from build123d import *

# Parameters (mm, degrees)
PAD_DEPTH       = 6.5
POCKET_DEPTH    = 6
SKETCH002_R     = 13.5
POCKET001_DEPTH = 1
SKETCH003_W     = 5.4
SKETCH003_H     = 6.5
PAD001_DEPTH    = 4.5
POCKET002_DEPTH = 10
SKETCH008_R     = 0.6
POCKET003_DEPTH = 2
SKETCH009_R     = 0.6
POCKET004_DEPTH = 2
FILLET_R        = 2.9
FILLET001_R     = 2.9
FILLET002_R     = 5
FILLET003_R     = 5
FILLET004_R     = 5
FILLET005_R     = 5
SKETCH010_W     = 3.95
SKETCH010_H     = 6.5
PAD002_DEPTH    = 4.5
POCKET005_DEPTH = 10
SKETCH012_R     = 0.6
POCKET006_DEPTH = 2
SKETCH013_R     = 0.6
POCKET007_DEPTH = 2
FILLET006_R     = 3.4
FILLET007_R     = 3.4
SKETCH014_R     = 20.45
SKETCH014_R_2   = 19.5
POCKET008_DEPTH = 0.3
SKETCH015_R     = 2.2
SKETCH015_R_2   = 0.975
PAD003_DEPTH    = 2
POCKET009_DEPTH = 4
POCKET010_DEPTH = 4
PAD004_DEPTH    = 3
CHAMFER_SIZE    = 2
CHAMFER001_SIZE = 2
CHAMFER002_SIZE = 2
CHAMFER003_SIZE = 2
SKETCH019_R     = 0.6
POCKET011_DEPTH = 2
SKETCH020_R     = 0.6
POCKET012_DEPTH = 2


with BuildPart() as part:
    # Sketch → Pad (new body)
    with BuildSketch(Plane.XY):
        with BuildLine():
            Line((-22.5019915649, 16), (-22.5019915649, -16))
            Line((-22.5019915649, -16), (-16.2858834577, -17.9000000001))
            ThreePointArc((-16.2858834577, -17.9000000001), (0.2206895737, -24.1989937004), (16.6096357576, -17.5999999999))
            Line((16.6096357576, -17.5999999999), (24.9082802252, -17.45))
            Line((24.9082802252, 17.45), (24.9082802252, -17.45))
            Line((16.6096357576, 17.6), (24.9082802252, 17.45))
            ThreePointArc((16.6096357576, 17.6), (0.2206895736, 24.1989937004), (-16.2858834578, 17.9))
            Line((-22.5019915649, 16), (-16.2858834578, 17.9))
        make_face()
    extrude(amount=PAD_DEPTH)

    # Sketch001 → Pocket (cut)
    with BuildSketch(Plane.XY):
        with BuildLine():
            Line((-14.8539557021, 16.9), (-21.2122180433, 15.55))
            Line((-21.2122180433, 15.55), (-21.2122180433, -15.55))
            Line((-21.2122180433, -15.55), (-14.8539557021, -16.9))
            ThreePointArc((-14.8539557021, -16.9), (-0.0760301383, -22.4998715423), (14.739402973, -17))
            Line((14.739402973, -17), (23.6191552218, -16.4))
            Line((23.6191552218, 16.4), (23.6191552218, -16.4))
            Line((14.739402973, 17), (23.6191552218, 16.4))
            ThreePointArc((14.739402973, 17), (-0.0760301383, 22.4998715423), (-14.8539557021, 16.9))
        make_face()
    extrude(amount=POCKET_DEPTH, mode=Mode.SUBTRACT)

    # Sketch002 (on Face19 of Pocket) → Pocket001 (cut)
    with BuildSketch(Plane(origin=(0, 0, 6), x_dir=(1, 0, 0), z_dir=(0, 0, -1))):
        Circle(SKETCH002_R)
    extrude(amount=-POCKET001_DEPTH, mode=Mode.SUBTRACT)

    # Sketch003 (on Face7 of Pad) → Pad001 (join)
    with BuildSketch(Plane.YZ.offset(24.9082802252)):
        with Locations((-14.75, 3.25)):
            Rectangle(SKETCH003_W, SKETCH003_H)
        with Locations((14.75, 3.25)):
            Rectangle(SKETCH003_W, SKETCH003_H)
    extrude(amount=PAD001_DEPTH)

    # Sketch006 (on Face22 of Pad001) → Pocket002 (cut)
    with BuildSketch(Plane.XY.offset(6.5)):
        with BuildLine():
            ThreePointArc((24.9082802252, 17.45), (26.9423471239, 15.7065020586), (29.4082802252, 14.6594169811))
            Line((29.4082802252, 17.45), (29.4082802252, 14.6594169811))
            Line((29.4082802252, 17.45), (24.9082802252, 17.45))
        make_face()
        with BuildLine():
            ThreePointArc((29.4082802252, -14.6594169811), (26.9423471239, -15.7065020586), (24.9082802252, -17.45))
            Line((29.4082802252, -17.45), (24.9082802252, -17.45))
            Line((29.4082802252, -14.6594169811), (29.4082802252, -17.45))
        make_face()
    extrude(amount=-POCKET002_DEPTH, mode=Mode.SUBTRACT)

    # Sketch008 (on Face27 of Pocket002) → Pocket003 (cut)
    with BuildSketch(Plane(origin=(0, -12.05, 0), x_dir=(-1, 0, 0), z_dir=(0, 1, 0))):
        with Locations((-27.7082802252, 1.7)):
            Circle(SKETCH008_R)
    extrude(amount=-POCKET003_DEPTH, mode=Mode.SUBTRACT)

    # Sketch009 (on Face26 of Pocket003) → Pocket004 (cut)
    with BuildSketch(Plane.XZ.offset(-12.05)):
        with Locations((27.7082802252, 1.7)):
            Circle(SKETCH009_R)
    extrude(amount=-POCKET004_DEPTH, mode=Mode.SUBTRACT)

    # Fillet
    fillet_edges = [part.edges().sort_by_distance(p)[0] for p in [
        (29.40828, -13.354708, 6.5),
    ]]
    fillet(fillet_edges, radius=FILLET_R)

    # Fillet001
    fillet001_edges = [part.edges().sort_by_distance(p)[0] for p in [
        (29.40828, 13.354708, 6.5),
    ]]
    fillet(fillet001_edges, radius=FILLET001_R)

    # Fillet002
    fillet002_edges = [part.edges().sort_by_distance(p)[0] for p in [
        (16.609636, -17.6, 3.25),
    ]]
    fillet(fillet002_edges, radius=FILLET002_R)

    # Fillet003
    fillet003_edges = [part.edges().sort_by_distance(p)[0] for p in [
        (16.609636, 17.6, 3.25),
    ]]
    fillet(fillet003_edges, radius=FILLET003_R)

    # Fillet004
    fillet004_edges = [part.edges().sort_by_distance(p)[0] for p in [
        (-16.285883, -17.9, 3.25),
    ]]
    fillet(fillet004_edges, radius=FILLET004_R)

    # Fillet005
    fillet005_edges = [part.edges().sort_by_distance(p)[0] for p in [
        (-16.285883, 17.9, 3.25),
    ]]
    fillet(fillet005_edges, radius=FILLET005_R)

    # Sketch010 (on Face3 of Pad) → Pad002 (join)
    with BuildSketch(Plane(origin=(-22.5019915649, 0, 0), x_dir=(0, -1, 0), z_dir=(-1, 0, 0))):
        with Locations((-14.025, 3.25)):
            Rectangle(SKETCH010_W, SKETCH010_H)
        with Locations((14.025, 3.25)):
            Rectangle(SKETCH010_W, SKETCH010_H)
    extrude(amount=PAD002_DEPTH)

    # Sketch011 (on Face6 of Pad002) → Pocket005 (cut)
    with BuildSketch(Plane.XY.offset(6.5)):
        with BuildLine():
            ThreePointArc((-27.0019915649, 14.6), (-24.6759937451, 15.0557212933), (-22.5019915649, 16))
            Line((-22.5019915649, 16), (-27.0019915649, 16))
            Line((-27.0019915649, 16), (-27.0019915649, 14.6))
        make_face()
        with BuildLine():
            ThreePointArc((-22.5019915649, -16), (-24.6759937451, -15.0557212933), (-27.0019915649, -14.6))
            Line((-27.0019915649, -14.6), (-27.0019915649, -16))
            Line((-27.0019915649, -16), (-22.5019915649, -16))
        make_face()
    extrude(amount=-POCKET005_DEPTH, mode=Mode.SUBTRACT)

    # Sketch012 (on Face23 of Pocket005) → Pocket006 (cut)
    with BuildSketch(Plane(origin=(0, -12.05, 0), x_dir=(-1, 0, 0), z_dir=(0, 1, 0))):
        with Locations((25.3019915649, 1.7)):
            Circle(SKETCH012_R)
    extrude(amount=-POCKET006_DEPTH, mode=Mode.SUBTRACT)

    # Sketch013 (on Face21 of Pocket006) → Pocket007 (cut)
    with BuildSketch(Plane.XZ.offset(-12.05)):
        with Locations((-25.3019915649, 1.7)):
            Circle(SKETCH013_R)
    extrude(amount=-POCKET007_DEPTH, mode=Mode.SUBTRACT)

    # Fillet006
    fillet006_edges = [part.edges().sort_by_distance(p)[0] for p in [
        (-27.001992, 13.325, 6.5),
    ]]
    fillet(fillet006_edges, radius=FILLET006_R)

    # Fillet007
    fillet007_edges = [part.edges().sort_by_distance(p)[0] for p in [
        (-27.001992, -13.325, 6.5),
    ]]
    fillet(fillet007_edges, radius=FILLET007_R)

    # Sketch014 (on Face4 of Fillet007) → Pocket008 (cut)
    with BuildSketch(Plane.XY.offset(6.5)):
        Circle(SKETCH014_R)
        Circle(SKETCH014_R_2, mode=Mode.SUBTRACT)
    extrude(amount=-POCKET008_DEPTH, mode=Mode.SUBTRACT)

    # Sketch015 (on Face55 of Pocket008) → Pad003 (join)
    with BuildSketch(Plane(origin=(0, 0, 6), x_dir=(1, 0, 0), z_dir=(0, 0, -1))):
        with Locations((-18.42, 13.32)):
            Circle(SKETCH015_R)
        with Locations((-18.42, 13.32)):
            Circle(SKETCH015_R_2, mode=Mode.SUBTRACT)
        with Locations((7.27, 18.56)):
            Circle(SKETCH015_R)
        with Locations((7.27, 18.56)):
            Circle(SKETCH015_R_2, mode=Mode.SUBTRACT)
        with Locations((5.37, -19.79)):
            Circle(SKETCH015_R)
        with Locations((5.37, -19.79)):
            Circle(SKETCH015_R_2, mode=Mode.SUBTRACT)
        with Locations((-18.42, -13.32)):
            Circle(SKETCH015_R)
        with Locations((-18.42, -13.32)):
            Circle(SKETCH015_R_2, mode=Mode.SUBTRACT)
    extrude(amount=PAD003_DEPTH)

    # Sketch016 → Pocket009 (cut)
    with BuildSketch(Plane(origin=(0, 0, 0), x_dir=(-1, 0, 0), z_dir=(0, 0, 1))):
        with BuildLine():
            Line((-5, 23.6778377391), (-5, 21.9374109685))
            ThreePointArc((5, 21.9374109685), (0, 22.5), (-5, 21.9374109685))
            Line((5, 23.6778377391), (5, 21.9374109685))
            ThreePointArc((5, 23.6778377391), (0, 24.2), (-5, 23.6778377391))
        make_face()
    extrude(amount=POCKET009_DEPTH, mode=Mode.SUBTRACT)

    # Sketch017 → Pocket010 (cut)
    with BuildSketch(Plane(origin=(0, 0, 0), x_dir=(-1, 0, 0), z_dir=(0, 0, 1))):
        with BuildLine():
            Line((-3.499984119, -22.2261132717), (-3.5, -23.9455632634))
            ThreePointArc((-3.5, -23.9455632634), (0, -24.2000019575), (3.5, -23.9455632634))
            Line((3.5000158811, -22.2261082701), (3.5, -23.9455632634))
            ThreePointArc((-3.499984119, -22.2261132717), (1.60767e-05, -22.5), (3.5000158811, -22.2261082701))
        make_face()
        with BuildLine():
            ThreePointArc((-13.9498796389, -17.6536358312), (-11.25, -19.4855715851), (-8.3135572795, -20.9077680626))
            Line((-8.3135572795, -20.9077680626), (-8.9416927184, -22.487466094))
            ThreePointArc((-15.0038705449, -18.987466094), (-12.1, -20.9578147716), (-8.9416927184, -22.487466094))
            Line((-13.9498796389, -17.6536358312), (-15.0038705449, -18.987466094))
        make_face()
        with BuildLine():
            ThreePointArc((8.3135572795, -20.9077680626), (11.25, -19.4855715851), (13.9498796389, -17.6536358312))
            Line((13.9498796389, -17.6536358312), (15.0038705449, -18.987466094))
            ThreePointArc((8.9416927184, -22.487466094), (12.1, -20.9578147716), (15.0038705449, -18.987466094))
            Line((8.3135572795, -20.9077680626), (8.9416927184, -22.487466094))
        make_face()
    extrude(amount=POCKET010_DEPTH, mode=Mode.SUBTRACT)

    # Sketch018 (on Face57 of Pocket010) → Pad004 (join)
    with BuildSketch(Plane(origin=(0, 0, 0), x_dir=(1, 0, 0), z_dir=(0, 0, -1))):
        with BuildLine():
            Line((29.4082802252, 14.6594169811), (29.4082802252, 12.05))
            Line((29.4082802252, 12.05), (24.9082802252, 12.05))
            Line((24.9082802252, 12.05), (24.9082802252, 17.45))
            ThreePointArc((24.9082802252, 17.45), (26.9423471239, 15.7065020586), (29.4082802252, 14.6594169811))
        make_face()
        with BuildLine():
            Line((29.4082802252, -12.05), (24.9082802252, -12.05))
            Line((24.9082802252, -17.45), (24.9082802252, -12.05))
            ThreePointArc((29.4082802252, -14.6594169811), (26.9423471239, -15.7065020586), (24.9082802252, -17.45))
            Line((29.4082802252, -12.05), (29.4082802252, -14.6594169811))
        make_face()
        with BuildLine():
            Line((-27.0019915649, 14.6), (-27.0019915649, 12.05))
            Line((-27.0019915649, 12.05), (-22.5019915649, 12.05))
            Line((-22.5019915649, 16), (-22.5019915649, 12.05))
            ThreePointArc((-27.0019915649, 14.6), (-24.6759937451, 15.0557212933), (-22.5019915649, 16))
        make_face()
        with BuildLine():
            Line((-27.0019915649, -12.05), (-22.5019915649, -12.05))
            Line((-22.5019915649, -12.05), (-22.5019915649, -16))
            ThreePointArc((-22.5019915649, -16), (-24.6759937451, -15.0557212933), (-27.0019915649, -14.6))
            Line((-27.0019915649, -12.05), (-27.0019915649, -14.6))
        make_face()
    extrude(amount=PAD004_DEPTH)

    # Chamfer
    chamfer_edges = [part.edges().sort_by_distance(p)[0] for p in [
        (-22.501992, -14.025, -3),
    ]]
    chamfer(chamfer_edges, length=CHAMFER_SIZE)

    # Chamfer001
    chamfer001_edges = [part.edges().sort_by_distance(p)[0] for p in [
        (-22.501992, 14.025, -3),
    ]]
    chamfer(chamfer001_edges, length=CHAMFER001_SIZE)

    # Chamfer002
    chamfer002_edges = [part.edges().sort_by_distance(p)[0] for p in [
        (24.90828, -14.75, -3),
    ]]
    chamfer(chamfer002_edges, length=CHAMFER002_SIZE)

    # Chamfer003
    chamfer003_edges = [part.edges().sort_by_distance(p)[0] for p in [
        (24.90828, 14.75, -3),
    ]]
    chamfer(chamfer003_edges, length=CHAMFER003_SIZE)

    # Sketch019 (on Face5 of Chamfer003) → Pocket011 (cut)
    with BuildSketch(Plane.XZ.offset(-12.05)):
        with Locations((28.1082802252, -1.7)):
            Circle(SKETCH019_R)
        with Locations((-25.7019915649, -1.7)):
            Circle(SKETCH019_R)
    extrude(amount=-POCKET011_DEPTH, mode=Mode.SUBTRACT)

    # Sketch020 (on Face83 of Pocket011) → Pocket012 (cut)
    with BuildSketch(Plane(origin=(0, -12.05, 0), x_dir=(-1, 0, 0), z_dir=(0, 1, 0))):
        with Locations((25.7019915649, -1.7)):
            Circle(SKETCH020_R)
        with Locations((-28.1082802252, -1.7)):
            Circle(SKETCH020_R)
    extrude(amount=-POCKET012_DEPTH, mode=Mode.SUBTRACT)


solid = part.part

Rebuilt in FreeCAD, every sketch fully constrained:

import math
import FreeCAD as App
import Part
import Sketcher


def edges_at(feature, points):
    """Names of the edges that pass closest to the given points."""
    edges = feature.Shape.Edges
    near = lambda p: min(range(len(edges)), key=lambda i: edges[i].distToShape(Part.Vertex(*p))[0])
    return sorted({f"Edge{near(p) + 1}" for p in points})


def add_polygon(sketch, points):
    """Adds a closed chain of lines whose ends are joined by coincident constraints."""
    first, n = sketch.GeometryCount, len(points)
    for a, b in zip(points, points[1:] + points[:1]):
        sketch.addGeometry(Part.LineSegment(App.Vector(*a, 0), App.Vector(*b, 0)), False)
    for i in range(n):
        sketch.addConstraint(Sketcher.Constraint("Coincident", first + i, 2, first + (i + 1) % n, 1))

doc = App.newDocument("Part")
body = doc.addObject("PartDesign::Body", "Body")

# Sketch on XY plane
sketch1 = body.newObject("Sketcher::SketchObject", "Sketch")
sketch1.AttachmentSupport = (doc.getObject("XY_Plane"), [""])
sketch1.MapMode = "FlatFace"
sketch1.addGeometry([
    Part.LineSegment(App.Vector(-22.501992, 16, 0), App.Vector(-22.501992, -16, 0)),  # 0
    Part.LineSegment(App.Vector(-22.501992, -16, 0), App.Vector(-16.285883, -17.9, 0)),  # 1
    Part.ArcOfCircle(Part.Circle(App.Vector(0, 0, 0), App.Vector(0, 0, 1), 24.2), math.radians(-132.296737), math.radians(-46.658242)),  # 2
    Part.LineSegment(App.Vector(16.609636, -17.6, 0), App.Vector(24.90828, -17.45, 0)),  # 3
    Part.LineSegment(App.Vector(24.90828, -17.45, 0), App.Vector(24.90828, 17.45, 0)),  # 4
    Part.LineSegment(App.Vector(24.90828, 17.45, 0), App.Vector(16.609636, 17.6, 0)),  # 5
    Part.ArcOfCircle(Part.Circle(App.Vector(0, 0, 0), App.Vector(0, 0, 1), 24.2), math.radians(46.658242), math.radians(132.296737)),  # 6
    Part.LineSegment(App.Vector(-16.285883, 17.9, 0), App.Vector(-22.501992, 16, 0)),  # 7
], False)
sketch1.addConstraint([
    Sketcher.Constraint("Coincident", 0, 2, 1, 1),
    Sketcher.Constraint("Coincident", 1, 2, 2, 1),
    Sketcher.Constraint("Coincident", 2, 2, 3, 1),
    Sketcher.Constraint("Coincident", 3, 2, 4, 1),
    Sketcher.Constraint("Coincident", 4, 2, 5, 1),
    Sketcher.Constraint("Coincident", 5, 2, 6, 1),
    Sketcher.Constraint("Coincident", 6, 2, 7, 1),
    Sketcher.Constraint("Coincident", 7, 2, 0, 1),
    Sketcher.Constraint("Vertical", 0),
    Sketcher.Constraint("Vertical", 4),
    Sketcher.Constraint("Coincident", 2, 3, -1, 1),
    Sketcher.Constraint("Coincident", 6, 3, -1, 1),
    Sketcher.Constraint("Equal", 2, 6),
    Sketcher.Constraint("Vertical", 2, 2, 5, 2),
    Sketcher.Constraint("Vertical", 1, 2, 6, 2),
    Sketcher.Constraint("Equal", 3, 5),
    Sketcher.Constraint("Equal", 1, 7),
    Sketcher.Constraint("Radius", 2, 24.2),
    Sketcher.Constraint("DistanceY", 0, 2, 0, 1, 32.0),
    Sketcher.Constraint("DistanceY", 4, 1, 4, 2, 34.9),
    Sketcher.Constraint("Distance", 1, 6.5),
    Sketcher.Constraint("Distance", 3, 8.3),
    Sketcher.Constraint("DistanceY", 1, 2, -1, 1, 17.9),
    Sketcher.Constraint("DistanceY", 2, 2, -1, 1, 17.6),
])
pad1 = body.newObject("PartDesign::Pad", "Pad")
pad1.Profile = sketch1
pad1.Length = 6.5

# Sketch on XY plane
sketch2 = body.newObject("Sketcher::SketchObject", "Sketch001")
sketch2.AttachmentSupport = (doc.getObject("XY_Plane"), [""])
sketch2.MapMode = "FlatFace"
sketch2.addGeometry([
    Part.LineSegment(App.Vector(-14.853956, 16.9, 0), App.Vector(-21.212218, 15.55, 0)),  # 0
    Part.LineSegment(App.Vector(-21.212218, 15.55, 0), App.Vector(-21.212218, -15.55, 0)),  # 1
    Part.LineSegment(App.Vector(-21.212218, -15.55, 0), App.Vector(-14.853956, -16.9, 0)),  # 2
    Part.ArcOfCircle(Part.Circle(App.Vector(0, 0, 0), App.Vector(0, 0, 1), 22.5), math.radians(-131.313282), math.radians(-49.073937)),  # 3
    Part.LineSegment(App.Vector(14.739403, -17, 0), App.Vector(23.619155, -16.4, 0)),  # 4
    Part.LineSegment(App.Vector(23.619155, -16.4, 0), App.Vector(23.619155, 16.4, 0)),  # 5
    Part.LineSegment(App.Vector(23.619155, 16.4, 0), App.Vector(14.739403, 17, 0)),  # 6
    Part.ArcOfCircle(Part.Circle(App.Vector(0, 0, 0), App.Vector(0, 0, 1), 22.5), math.radians(49.073937), math.radians(131.313282)),  # 7
], False)
sketch2.addConstraint([
    Sketcher.Constraint("Coincident", 0, 2, 1, 1),
    Sketcher.Constraint("Coincident", 1, 2, 2, 1),
    Sketcher.Constraint("Coincident", 2, 2, 3, 1),
    Sketcher.Constraint("Coincident", 3, 2, 4, 1),
    Sketcher.Constraint("Coincident", 4, 2, 5, 1),
    Sketcher.Constraint("Coincident", 5, 2, 6, 1),
    Sketcher.Constraint("Coincident", 6, 2, 7, 1),
    Sketcher.Constraint("Coincident", 7, 2, 0, 1),
    Sketcher.Constraint("Vertical", 1),
    Sketcher.Constraint("Vertical", 5),
    Sketcher.Constraint("Coincident", 3, 3, -1, 1),
    Sketcher.Constraint("Coincident", 7, 3, -1, 1),
    Sketcher.Constraint("Equal", 3, 7),
    Sketcher.Constraint("Vertical", 3, 2, 6, 2),
    Sketcher.Constraint("Vertical", 2, 2, 7, 2),
    Sketcher.Constraint("Equal", 0, 2),
    Sketcher.Constraint("Equal", 4, 6),
    Sketcher.Constraint("Radius", 3, 22.5),
    Sketcher.Constraint("DistanceY", 1, 2, 1, 1, 31.1),
    Sketcher.Constraint("DistanceY", 5, 1, 5, 2, 32.8),
    Sketcher.Constraint("DistanceY", 3, 2, -1, 1, 17.0),
    Sketcher.Constraint("Distance", 0, 6.5),
    Sketcher.Constraint("Distance", 4, 8.9),
    Sketcher.Constraint("DistanceY", 2, 2, -1, 1, 16.9),
])
pocket1 = body.newObject("PartDesign::Pocket", "Pocket")
pocket1.Profile = sketch2
pocket1.Length = 6
pocket1.Reversed = True

# Sketch on XY plane
sketch3 = body.newObject("Sketcher::SketchObject", "Sketch002")
sketch3.AttachmentSupport = (doc.getObject("XY_Plane"), [""])
sketch3.MapMode = "FlatFace"
sketch3.AttachmentOffset = App.Placement(App.Vector(0, 0, 6), App.Rotation())
sketch3.addGeometry(Part.Circle(App.Vector(0, 0, 0), App.Vector(0, 0, 1), 13.5), False)
sketch3.addConstraint([
    Sketcher.Constraint("Coincident", 0, 3, -1, 1),
    Sketcher.Constraint("Diameter", 0, 27.0),
])
pocket2 = body.newObject("PartDesign::Pocket", "Pocket001")
pocket2.Profile = sketch3
pocket2.Length = 1
pocket2.Reversed = True

# Sketch on YZ plane
sketch4 = body.newObject("Sketcher::SketchObject", "Sketch003")
sketch4.AttachmentSupport = (doc.getObject("YZ_Plane"), [""])
sketch4.MapMode = "FlatFace"
sketch4.AttachmentOffset = App.Placement(App.Vector(0, 0, 24.90828), App.Rotation())
add_polygon(sketch4, [(-17.45, 6.5), (-17.45, 0), (-12.05, 0), (-12.05, 6.5)])  # lines 0-3
add_polygon(sketch4, [(12.05, 6.5), (12.05, 0), (17.45, 0), (17.45, 6.5)])  # lines 4-7
sketch4.addConstraint([
    Sketcher.Constraint("Vertical", 0),
    Sketcher.Constraint("Horizontal", 1),
    Sketcher.Constraint("Vertical", 2),
    Sketcher.Constraint("Horizontal", 3),
    Sketcher.Constraint("Vertical", 4),
    Sketcher.Constraint("Horizontal", 5),
    Sketcher.Constraint("Vertical", 6),
    Sketcher.Constraint("Horizontal", 7),
    Sketcher.Constraint("Symmetric", 1, 2, 4, 2, -1, 1),
    Sketcher.Constraint("Symmetric", 0, 2, 5, 2, -2),
    Sketcher.Constraint("Horizontal", 3, 2, 6, 2),
    Sketcher.Constraint("DistanceX", 1, 1, 1, 2, 5.4),
    Sketcher.Constraint("DistanceY", 0, 2, 0, 1, 6.5),
    Sketcher.Constraint("DistanceX", 1, 2, 4, 2, 24.1),
])
pad2 = body.newObject("PartDesign::Pad", "Pad001")
pad2.Profile = sketch4
pad2.Length = 4.5

# Sketch on XY plane
sketch5 = body.newObject("Sketcher::SketchObject", "Sketch004")
sketch5.AttachmentSupport = (doc.getObject("XY_Plane"), [""])
sketch5.MapMode = "FlatFace"
sketch5.AttachmentOffset = App.Placement(App.Vector(0, 0, 6.5), App.Rotation())
sketch5.addGeometry([
    Part.ArcOfCircle(Part.Circle(App.Vector(31.55828, 23.15, 0), App.Vector(0, 0, 1), 8.758567), math.radians(-139.398705), math.radians(-104.209844)),  # 0
    Part.LineSegment(App.Vector(29.40828, 14.659417, 0), App.Vector(29.40828, 17.45, 0)),  # 1
    Part.LineSegment(App.Vector(29.40828, 17.45, 0), App.Vector(24.90828, 17.45, 0)),  # 2
    Part.ArcOfCircle(Part.Circle(App.Vector(31.55828, -23.15, 0), App.Vector(0, 0, 1), 8.758567), math.radians(104.209844), math.radians(139.398705)),  # 3
    Part.LineSegment(App.Vector(24.90828, -17.45, 0), App.Vector(29.40828, -17.45, 0)),  # 4
    Part.LineSegment(App.Vector(29.40828, -17.45, 0), App.Vector(29.40828, -14.659417, 0)),  # 5
], False)
sketch5.addConstraint([
    Sketcher.Constraint("Coincident", 0, 2, 1, 1),
    Sketcher.Constraint("Coincident", 1, 2, 2, 1),
    Sketcher.Constraint("Coincident", 2, 2, 0, 1),
    Sketcher.Constraint("Coincident", 3, 2, 4, 1),
    Sketcher.Constraint("Coincident", 4, 2, 5, 1),
    Sketcher.Constraint("Coincident", 5, 2, 3, 1),
    Sketcher.Constraint("Vertical", 1),
    Sketcher.Constraint("Horizontal", 2),
    Sketcher.Constraint("Horizontal", 4),
    Sketcher.Constraint("Vertical", 5),
    Sketcher.Constraint("Equal", 0, 3),
    Sketcher.Constraint("Symmetric", 0, 3, 3, 3, -1),
    Sketcher.Constraint("Symmetric", 1, 2, 4, 2, -1),
    Sketcher.Constraint("DistanceX", 2, 2, 2, 1, 4.5),
    Sketcher.Constraint("DistanceY", 3, 3, 0, 3, 46.3),
    Sketcher.Constraint("DistanceY", 1, 2, 0, 3, 5.7),
    Sketcher.Constraint("DistanceX", 0, 2, 0, 3, 2.15),
    Sketcher.Constraint("DistanceX", -1, 1, 0, 3, 31.55828),
])
pocket3 = body.newObject("PartDesign::Pocket", "Pocket002")
pocket3.Profile = sketch5
pocket3.Length = 10

# Sketch on XZ plane
sketch6 = body.newObject("Sketcher::SketchObject", "Sketch005")
sketch6.AttachmentSupport = (doc.getObject("XZ_Plane"), [""])
sketch6.MapMode = "FlatFace"
sketch6.AttachmentOffset = App.Placement(App.Vector(0, 0, 12.05), App.Rotation())
sketch6.addGeometry(Part.Circle(App.Vector(27.70828, 1.7, 0), App.Vector(0, 0, 1), 0.6), False)
sketch6.addConstraint([
    Sketcher.Constraint("Diameter", 0, 1.2),
    Sketcher.Constraint("DistanceY", -1, 1, 0, 3, 1.7),
    Sketcher.Constraint("DistanceX", -1, 1, 0, 3, 27.70828),
])
pocket4 = body.newObject("PartDesign::Pocket", "Pocket003")
pocket4.Profile = sketch6
pocket4.Length = 2
pocket4.Reversed = True

# Sketch on XZ plane
sketch7 = body.newObject("Sketcher::SketchObject", "Sketch006")
sketch7.AttachmentSupport = (doc.getObject("XZ_Plane"), [""])
sketch7.MapMode = "FlatFace"
sketch7.AttachmentOffset = App.Placement(App.Vector(0, 0, -12.05), App.Rotation())
sketch7.addGeometry(Part.Circle(App.Vector(27.70828, 1.7, 0), App.Vector(0, 0, 1), 0.6), False)
sketch7.addConstraint([
    Sketcher.Constraint("Diameter", 0, 1.2),
    Sketcher.Constraint("DistanceY", -1, 1, 0, 3, 1.7),
    Sketcher.Constraint("DistanceX", -1, 1, 0, 3, 27.70828),
])
pocket5 = body.newObject("PartDesign::Pocket", "Pocket004")
pocket5.Profile = sketch7
pocket5.Length = 2
doc.recompute()

fillet = body.newObject("PartDesign::Fillet", "Fillet")
fillet.Base = (pocket5, edges_at(pocket5, [(29.408, -13.355, 6.5)]))
fillet.Radius = 2.9
doc.recompute()

fillet2 = body.newObject("PartDesign::Fillet", "Fillet001")
fillet2.Base = (fillet, edges_at(fillet, [(29.408, 13.355, 6.5)]))
fillet2.Radius = 2.9
doc.recompute()

fillet3 = body.newObject("PartDesign::Fillet", "Fillet002")
fillet3.Base = (fillet2, edges_at(fillet2, [(16.61, -17.6, 3.25)]))
fillet3.Radius = 5
doc.recompute()

fillet4 = body.newObject("PartDesign::Fillet", "Fillet003")
fillet4.Base = (fillet3, edges_at(fillet3, [(16.61, 17.6, 3.25)]))
fillet4.Radius = 5
doc.recompute()

fillet5 = body.newObject("PartDesign::Fillet", "Fillet004")
fillet5.Base = (fillet4, edges_at(fillet4, [(-16.286, -17.9, 3.25)]))
fillet5.Radius = 5
doc.recompute()

fillet6 = body.newObject("PartDesign::Fillet", "Fillet005")
fillet6.Base = (fillet5, edges_at(fillet5, [(-16.286, 17.9, 3.25)]))
fillet6.Radius = 5

# Sketch on YZ plane
sketch8 = body.newObject("Sketcher::SketchObject", "Sketch007")
sketch8.AttachmentSupport = (doc.getObject("YZ_Plane"), [""])
sketch8.MapMode = "FlatFace"
sketch8.AttachmentOffset = App.Placement(App.Vector(0, 0, -22.501992), App.Rotation())
add_polygon(sketch8, [(16, 6.5), (16, 0), (12.05, 0), (12.05, 6.5)])  # lines 0-3
add_polygon(sketch8, [(-12.05, 6.5), (-12.05, 0), (-16, 0), (-16, 6.5)])  # lines 4-7
sketch8.addConstraint([
    Sketcher.Constraint("Vertical", 0),
    Sketcher.Constraint("Horizontal", 1),
    Sketcher.Constraint("Vertical", 2),
    Sketcher.Constraint("Horizontal", 3),
    Sketcher.Constraint("Vertical", 4),
    Sketcher.Constraint("Horizontal", 5),
    Sketcher.Constraint("Vertical", 6),
    Sketcher.Constraint("Horizontal", 7),
    Sketcher.Constraint("Symmetric", 1, 2, 4, 2, -1, 1),
    Sketcher.Constraint("Symmetric", 0, 2, 5, 2, -2),
    Sketcher.Constraint("Horizontal", 3, 2, 6, 2),
    Sketcher.Constraint("DistanceY", 0, 2, 0, 1, 6.5),
    Sketcher.Constraint("DistanceX", -1, 1, 0, 2, 16.0),
    Sketcher.Constraint("DistanceX", 1, 2, 1, 1, 3.95),
])
pad3 = body.newObject("PartDesign::Pad", "Pad002")
pad3.Profile = sketch8
pad3.Length = 4.5
pad3.Reversed = True

# Sketch on XY plane
sketch9 = body.newObject("Sketcher::SketchObject", "Sketch008")
sketch9.AttachmentSupport = (doc.getObject("XY_Plane"), [""])
sketch9.MapMode = "FlatFace"
sketch9.AttachmentOffset = App.Placement(App.Vector(0, 0, 6.5), App.Rotation())
sketch9.addGeometry([
    Part.ArcOfCircle(Part.Circle(App.Vector(-27.937769, 25.54, 0), App.Vector(0, 0, 1), 10.979949), math.radians(-85.110976), math.radians(-60.326028)),  # 0
    Part.LineSegment(App.Vector(-22.501992, 16, 0), App.Vector(-27.001992, 16, 0)),  # 1
    Part.LineSegment(App.Vector(-27.001992, 16, 0), App.Vector(-27.001992, 14.6, 0)),  # 2
    Part.ArcOfCircle(Part.Circle(App.Vector(-27.937769, -25.54, 0), App.Vector(0, 0, 1), 10.979949), math.radians(60.326028), math.radians(85.110976)),  # 3
    Part.LineSegment(App.Vector(-27.001992, -14.6, 0), App.Vector(-27.001992, -16, 0)),  # 4
    Part.LineSegment(App.Vector(-27.001992, -16, 0), App.Vector(-22.501992, -16, 0)),  # 5
], False)
sketch9.addConstraint([
    Sketcher.Constraint("Coincident", 0, 2, 1, 1),
    Sketcher.Constraint("Coincident", 1, 2, 2, 1),
    Sketcher.Constraint("Coincident", 2, 2, 0, 1),
    Sketcher.Constraint("Coincident", 3, 2, 4, 1),
    Sketcher.Constraint("Coincident", 4, 2, 5, 1),
    Sketcher.Constraint("Coincident", 5, 2, 3, 1),
    Sketcher.Constraint("Horizontal", 1),
    Sketcher.Constraint("Vertical", 2),
    Sketcher.Constraint("Vertical", 4),
    Sketcher.Constraint("Horizontal", 5),
    Sketcher.Constraint("Equal", 0, 3),
    Sketcher.Constraint("Symmetric", 0, 3, 3, 3, -1),
    Sketcher.Constraint("Symmetric", 1, 2, 4, 2, -1),
    Sketcher.Constraint("DistanceX", 1, 2, 1, 1, 4.5),
    Sketcher.Constraint("DistanceY", 2, 2, 2, 1, 1.4),
    Sketcher.Constraint("DistanceY", -1, 1, 0, 2, 16.0),
    Sketcher.Constraint("DistanceY", -1, 1, 0, 3, 25.54),
    Sketcher.Constraint("DistanceX", 0, 3, -1, 1, 27.937769),
])
pocket6 = body.newObject("PartDesign::Pocket", "Pocket005")
pocket6.Profile = sketch9
pocket6.Length = 10

# Sketch on XZ plane
sketch10 = body.newObject("Sketcher::SketchObject", "Sketch009")
sketch10.AttachmentSupport = (doc.getObject("XZ_Plane"), [""])
sketch10.MapMode = "FlatFace"
sketch10.AttachmentOffset = App.Placement(App.Vector(0, 0, 12.05), App.Rotation())
sketch10.addGeometry(Part.Circle(App.Vector(-25.301992, 1.7, 0), App.Vector(0, 0, 1), 0.6), False)
sketch10.addConstraint([
    Sketcher.Constraint("Diameter", 0, 1.2),
    Sketcher.Constraint("DistanceY", -1, 1, 0, 3, 1.7),
    Sketcher.Constraint("DistanceX", 0, 3, -1, 1, 25.301992),
])
pocket7 = body.newObject("PartDesign::Pocket", "Pocket006")
pocket7.Profile = sketch10
pocket7.Length = 2
pocket7.Reversed = True

# Sketch on XZ plane
sketch11 = body.newObject("Sketcher::SketchObject", "Sketch010")
sketch11.AttachmentSupport = (doc.getObject("XZ_Plane"), [""])
sketch11.MapMode = "FlatFace"
sketch11.AttachmentOffset = App.Placement(App.Vector(0, 0, -12.05), App.Rotation())
sketch11.addGeometry(Part.Circle(App.Vector(-25.301992, 1.7, 0), App.Vector(0, 0, 1), 0.6), False)
sketch11.addConstraint([
    Sketcher.Constraint("Diameter", 0, 1.2),
    Sketcher.Constraint("DistanceY", -1, 1, 0, 3, 1.7),
    Sketcher.Constraint("DistanceX", 0, 3, -1, 1, 25.301992),
])
pocket8 = body.newObject("PartDesign::Pocket", "Pocket007")
pocket8.Profile = sketch11
pocket8.Length = 2
doc.recompute()

fillet7 = body.newObject("PartDesign::Fillet", "Fillet006")
fillet7.Base = (pocket8, edges_at(pocket8, [(-27.002, 13.325, 6.5)]))
fillet7.Radius = 3.4
doc.recompute()

fillet8 = body.newObject("PartDesign::Fillet", "Fillet007")
fillet8.Base = (fillet7, edges_at(fillet7, [(-27.002, -13.325, 6.5)]))
fillet8.Radius = 3.4

# Sketch on XY plane
sketch12 = body.newObject("Sketcher::SketchObject", "Sketch011")
sketch12.AttachmentSupport = (doc.getObject("XY_Plane"), [""])
sketch12.MapMode = "FlatFace"
sketch12.AttachmentOffset = App.Placement(App.Vector(0, 0, 6.5), App.Rotation())
sketch12.addGeometry([
    Part.Circle(App.Vector(0, 0, 0), App.Vector(0, 0, 1), 20.45),
    Part.Circle(App.Vector(0, 0, 0), App.Vector(0, 0, 1), 19.5),
], False)
sketch12.addConstraint([
    Sketcher.Constraint("Coincident", 0, 3, -1, 1),
    Sketcher.Constraint("Coincident", 1, 3, -1, 1),
    Sketcher.Constraint("Diameter", 1, 39.0),
    Sketcher.Constraint("Diameter", 0, 40.9),
])
pocket9 = body.newObject("PartDesign::Pocket", "Pocket008")
pocket9.Profile = sketch12
pocket9.Length = 0.3

# Sketch on XY plane
sketch13 = body.newObject("Sketcher::SketchObject", "Sketch012")
sketch13.AttachmentSupport = (doc.getObject("XY_Plane"), [""])
sketch13.MapMode = "FlatFace"
sketch13.AttachmentOffset = App.Placement(App.Vector(0, 0, 6), App.Rotation())
sketch13.addGeometry([
    Part.Circle(App.Vector(-18.42, -13.32, 0), App.Vector(0, 0, 1), 2.2),  # 0
    Part.Circle(App.Vector(-18.42, -13.32, 0), App.Vector(0, 0, 1), 0.975),  # 1
    Part.Circle(App.Vector(7.27, -18.56, 0), App.Vector(0, 0, 1), 2.2),  # 2
    Part.Circle(App.Vector(7.27, -18.56, 0), App.Vector(0, 0, 1), 0.975),  # 3
    Part.Circle(App.Vector(5.37, 19.79, 0), App.Vector(0, 0, 1), 2.2),  # 4
    Part.Circle(App.Vector(5.37, 19.79, 0), App.Vector(0, 0, 1), 0.975),  # 5
    Part.Circle(App.Vector(-18.42, 13.32, 0), App.Vector(0, 0, 1), 2.2),  # 6
    Part.Circle(App.Vector(-18.42, 13.32, 0), App.Vector(0, 0, 1), 0.975),  # 7
], False)
sketch13.addConstraint([
    Sketcher.Constraint("Coincident", 1, 3, 0, 3),
    Sketcher.Constraint("Coincident", 3, 3, 2, 3),
    Sketcher.Constraint("Coincident", 5, 3, 4, 3),
    Sketcher.Constraint("Coincident", 7, 3, 6, 3),
    Sketcher.Constraint("Equal", 0, 2),
    Sketcher.Constraint("Equal", 1, 3),
    Sketcher.Constraint("Equal", 2, 4),
    Sketcher.Constraint("Equal", 3, 5),
    Sketcher.Constraint("Equal", 4, 6),
    Sketcher.Constraint("Equal", 5, 7),
    Sketcher.Constraint("Symmetric", 0, 3, 6, 3, -1),
    Sketcher.Constraint("Diameter", 0, 4.4),
    Sketcher.Constraint("Diameter", 1, 1.95),
    Sketcher.Constraint("DistanceX", 4, 3, 2, 3, 1.9),
    Sketcher.Constraint("DistanceX", 0, 3, -1, 1, 18.42),
    Sketcher.Constraint("DistanceY", 0, 3, -1, 1, 13.32),
    Sketcher.Constraint("DistanceX", -1, 1, 2, 3, 7.27),
    Sketcher.Constraint("DistanceY", 2, 3, -1, 1, 18.56),
    Sketcher.Constraint("DistanceY", -1, 1, 4, 3, 19.79),
])
pad4 = body.newObject("PartDesign::Pad", "Pad003")
pad4.Profile = sketch13
pad4.Length = 2
pad4.Reversed = True

# Sketch on XY plane
sketch14 = body.newObject("Sketcher::SketchObject", "Sketch013")
sketch14.AttachmentSupport = (doc.getObject("XY_Plane"), [""])
sketch14.MapMode = "FlatFace"
sketch14.addGeometry([
    Part.LineSegment(App.Vector(5, -23.677838, 0), App.Vector(5, -21.937411, 0)),
    Part.ArcOfCircle(Part.Circle(App.Vector(0, 0, 0), App.Vector(0, 0, 1), 22.5), math.radians(-102.839588), math.radians(-77.160412)),
    Part.LineSegment(App.Vector(-5, -21.937411, 0), App.Vector(-5, -23.677838, 0)),
    Part.ArcOfCircle(Part.Circle(App.Vector(0, 0, 0), App.Vector(0, 0, 1), 24.2), math.radians(-101.923855), math.radians(-78.076145)),
], False)
sketch14.addConstraint([
    Sketcher.Constraint("Coincident", 0, 2, 1, 2),
    Sketcher.Constraint("Coincident", 1, 1, 2, 1),
    Sketcher.Constraint("Coincident", 2, 2, 3, 1),
    Sketcher.Constraint("Coincident", 3, 2, 0, 1),
    Sketcher.Constraint("Vertical", 0),
    Sketcher.Constraint("Vertical", 2),
    Sketcher.Constraint("Coincident", 1, 3, -1, 1),
    Sketcher.Constraint("Coincident", 3, 3, -1, 1),
    Sketcher.Constraint("Horizontal", 0, 2, 1, 1),
    Sketcher.Constraint("Radius", 1, 22.5),
    Sketcher.Constraint("Radius", 3, 24.2),
    Sketcher.Constraint("DistanceX", -1, 1, 0, 2, 5.0),
])
pocket10 = body.newObject("PartDesign::Pocket", "Pocket009")
pocket10.Profile = sketch14
pocket10.Length = 4
pocket10.Reversed = True

# Sketch on XY plane
sketch15 = body.newObject("Sketcher::SketchObject", "Sketch014")
sketch15.AttachmentSupport = (doc.getObject("XY_Plane"), [""])
sketch15.MapMode = "FlatFace"
sketch15.addGeometry([
    Part.LineSegment(App.Vector(3.499984, 22.226113, 0), App.Vector(3.5, 23.945563, 0)),  # 0
    Part.ArcOfCircle(Part.Circle(App.Vector(0, 0.000186, 0), App.Vector(0, 0, 1), 24.199816), math.radians(81.684192), math.radians(98.315808)),  # 1
    Part.LineSegment(App.Vector(-3.5, 23.945563, 0), App.Vector(-3.500016, 22.226108, 0)),  # 2
    Part.ArcOfCircle(Part.Circle(App.Vector(0, 0, 0), App.Vector(0, 0, 1), 22.5), math.radians(81.051023), math.radians(98.949059)),  # 3
    Part.ArcOfCircle(Part.Circle(App.Vector(0, 0, 0), App.Vector(0, 0, 1), 22.5), math.radians(51.684256), math.radians(68.315744)),  # 4
    Part.LineSegment(App.Vector(13.94988, 17.653636, 0), App.Vector(15.003871, 18.987466, 0)),  # 5
    Part.ArcOfCircle(Part.Circle(App.Vector(0, 0, 0), App.Vector(0, 0, 1), 24.2), math.radians(51.684256), math.radians(68.315744)),  # 6
    Part.LineSegment(App.Vector(8.941693, 22.487466, 0), App.Vector(8.313557, 20.907768, 0)),  # 7
    Part.ArcOfCircle(Part.Circle(App.Vector(0, 0, 0), App.Vector(0, 0, 1), 22.5), math.radians(111.684256), math.radians(128.315744)),  # 8
    Part.LineSegment(App.Vector(-8.313557, 20.907768, 0), App.Vector(-8.941693, 22.487466, 0)),  # 9
    Part.ArcOfCircle(Part.Circle(App.Vector(0, 0, 0), App.Vector(0, 0, 1), 24.2), math.radians(111.684256), math.radians(128.315744)),  # 10
    Part.LineSegment(App.Vector(-15.003871, 18.987466, 0), App.Vector(-13.94988, 17.653636, 0)),  # 11
], False)
sketch15.addConstraint([
    Sketcher.Constraint("Coincident", 0, 2, 1, 1),
    Sketcher.Constraint("Coincident", 1, 2, 2, 1),
    Sketcher.Constraint("Coincident", 2, 2, 3, 2),
    Sketcher.Constraint("Coincident", 3, 1, 0, 1),
    Sketcher.Constraint("Coincident", 4, 1, 5, 1),
    Sketcher.Constraint("Coincident", 5, 2, 6, 1),
    Sketcher.Constraint("Coincident", 6, 2, 7, 1),
    Sketcher.Constraint("Coincident", 7, 2, 4, 2),
    Sketcher.Constraint("Coincident", 8, 1, 9, 1),
    Sketcher.Constraint("Coincident", 9, 2, 10, 1),
    Sketcher.Constraint("Coincident", 10, 2, 11, 1),
    Sketcher.Constraint("Coincident", 11, 2, 8, 2),
    Sketcher.Constraint("Coincident", 3, 3, -1, 1),
    Sketcher.Constraint("Coincident", 4, 3, -1, 1),
    Sketcher.Constraint("Coincident", 6, 3, -1, 1),
    Sketcher.Constraint("Coincident", 8, 3, -1, 1),
    Sketcher.Constraint("Coincident", 10, 3, -1, 1),
    Sketcher.Constraint("Equal", 3, 4),
    Sketcher.Constraint("Equal", 4, 8),
    Sketcher.Constraint("Equal", 6, 10),
    Sketcher.Constraint("Symmetric", 0, 2, 1, 2, -2),
    Sketcher.Constraint("Parallel", 0, 2),
    Sketcher.Constraint("Horizontal", 7, 2, 8, 1),
    Sketcher.Constraint("Horizontal", 6, 2, 9, 2),
    Sketcher.Constraint("Horizontal", 5, 2, 10, 2),
    Sketcher.Constraint("Horizontal", 4, 1, 11, 2),
    Sketcher.Constraint("Radius", 3, 22.5),
    Sketcher.Constraint("Radius", 6, 24.2),
    Sketcher.Constraint("DistanceX", 1, 2, 0, 2, 7.0),
    Sketcher.Constraint("DistanceY", 5, 2, 6, 2, 3.5),
    Sketcher.Constraint("Radius", 1, 24.199816),
    Sketcher.Constraint("DistanceY", 7, 2, 6, 2, 1.579698),
    Sketcher.Constraint("Distance", 0, 1.71945),
    Sketcher.Constraint("DistanceY", -1, 1, 2, 2, 22.226108),
    Sketcher.Constraint("DistanceX", -1, 1, 4, 1, 13.94988),
    Sketcher.Constraint("DistanceX", -1, 1, 5, 2, 15.003871),
])
pocket11 = body.newObject("PartDesign::Pocket", "Pocket010")
pocket11.Profile = sketch15
pocket11.Length = 4
pocket11.Reversed = True

# Sketch on XY plane
sketch16 = body.newObject("Sketcher::SketchObject", "Sketch015")
sketch16.AttachmentSupport = (doc.getObject("XY_Plane"), [""])
sketch16.MapMode = "FlatFace"
sketch16.addGeometry([
    Part.LineSegment(App.Vector(29.40828, -12.05, 0), App.Vector(29.40828, -14.659417, 0)),  # 0
    Part.ArcOfCircle(Part.Circle(App.Vector(31.55828, -23.15, 0), App.Vector(0, 0, 1), 8.758567), math.radians(104.209844), math.radians(139.398705)),  # 1
    Part.LineSegment(App.Vector(24.90828, -17.45, 0), App.Vector(24.90828, -12.05, 0)),  # 2
    Part.LineSegment(App.Vector(24.90828, -12.05, 0), App.Vector(29.40828, -12.05, 0)),  # 3
    Part.LineSegment(App.Vector(29.40828, 12.05, 0), App.Vector(24.90828, 12.05, 0)),  # 4
    Part.LineSegment(App.Vector(24.90828, 12.05, 0), App.Vector(24.90828, 17.45, 0)),  # 5
    Part.ArcOfCircle(Part.Circle(App.Vector(31.55828, 23.15, 0), App.Vector(0, 0, 1), 8.758567), math.radians(-139.398705), math.radians(-104.209844)),  # 6
    Part.LineSegment(App.Vector(29.40828, 14.659417, 0), App.Vector(29.40828, 12.05, 0)),  # 7
    Part.LineSegment(App.Vector(-27.001992, -14.6, 0), App.Vector(-27.001992, -12.05, 0)),  # 8
    Part.LineSegment(App.Vector(-27.001992, -12.05, 0), App.Vector(-22.501992, -12.05, 0)),  # 9
    Part.LineSegment(App.Vector(-22.501992, -12.05, 0), App.Vector(-22.501992, -16, 0)),  # 10
    Part.ArcOfCircle(Part.Circle(App.Vector(-27.937769, -25.54, 0), App.Vector(0, 0, 1), 10.979949), math.radians(60.326028), math.radians(85.110976)),  # 11
    Part.LineSegment(App.Vector(-22.501992, 12.05, 0), App.Vector(-27.001992, 12.05, 0)),  # 12
    Part.LineSegment(App.Vector(-27.001992, 12.05, 0), App.Vector(-27.001992, 14.6, 0)),  # 13
    Part.ArcOfCircle(Part.Circle(App.Vector(-27.937769, 25.54, 0), App.Vector(0, 0, 1), 10.979949), math.radians(-85.110976), math.radians(-60.326028)),  # 14
    Part.LineSegment(App.Vector(-22.501992, 16, 0), App.Vector(-22.501992, 12.05, 0)),  # 15
], False)
sketch16.addConstraint([
    Sketcher.Constraint("Coincident", 0, 2, 1, 1),
    Sketcher.Constraint("Coincident", 1, 2, 2, 1),
    Sketcher.Constraint("Coincident", 2, 2, 3, 1),
    Sketcher.Constraint("Coincident", 3, 2, 0, 1),
    Sketcher.Constraint("Coincident", 4, 2, 5, 1),
    Sketcher.Constraint("Coincident", 5, 2, 6, 1),
    Sketcher.Constraint("Coincident", 6, 2, 7, 1),
    Sketcher.Constraint("Coincident", 7, 2, 4, 1),
    Sketcher.Constraint("Coincident", 8, 2, 9, 1),
    Sketcher.Constraint("Coincident", 9, 2, 10, 1),
    Sketcher.Constraint("Coincident", 10, 2, 11, 1),
    Sketcher.Constraint("Coincident", 11, 2, 8, 1),
    Sketcher.Constraint("Coincident", 12, 2, 13, 1),
    Sketcher.Constraint("Coincident", 13, 2, 14, 1),
    Sketcher.Constraint("Coincident", 14, 2, 15, 1),
    Sketcher.Constraint("Coincident", 15, 2, 12, 1),
    Sketcher.Constraint("Vertical", 0),
    Sketcher.Constraint("Vertical", 2),
    Sketcher.Constraint("Horizontal", 3),
    Sketcher.Constraint("Horizontal", 4),
    Sketcher.Constraint("Vertical", 5),
    Sketcher.Constraint("Vertical", 7),
    Sketcher.Constraint("Vertical", 8),
    Sketcher.Constraint("Horizontal", 9),
    Sketcher.Constraint("Vertical", 10),
    Sketcher.Constraint("Horizontal", 12),
    Sketcher.Constraint("Vertical", 13),
    Sketcher.Constraint("Vertical", 15),
    Sketcher.Constraint("Equal", 1, 6),
    Sketcher.Constraint("Equal", 11, 14),
    Sketcher.Constraint("Symmetric", 1, 3, 6, 3, -1),
    Sketcher.Constraint("Symmetric", 11, 3, 14, 3, -1),
    Sketcher.Constraint("Symmetric", 2, 2, 4, 2, -1),
    Sketcher.Constraint("Symmetric", 8, 2, 12, 2, -1),
    Sketcher.Constraint("Horizontal", 3, 2, 8, 2),
    Sketcher.Constraint("Vertical", 3, 2, 6, 2),
    Sketcher.Constraint("Vertical", 10, 2, 14, 2),
    Sketcher.Constraint("Equal", 4, 9),
    Sketcher.Constraint("DistanceX", 3, 1, 3, 2, 4.5),
    Sketcher.Constraint("DistanceY", 2, 1, 2, 2, 5.4),
    Sketcher.Constraint("DistanceY", 10, 2, -1, 1, 16.0),
    Sketcher.Constraint("DistanceY", 8, 1, 8, 2, 2.55),
    Sketcher.Constraint("DistanceY", 10, 2, 10, 1, 3.95),
    Sketcher.Constraint("DistanceY", 1, 3, 6, 3, 46.3),
    Sketcher.Constraint("DistanceY", 11, 3, -1, 1, 25.54),
    Sketcher.Constraint("DistanceX", 0, 2, 1, 3, 2.15),
    Sketcher.Constraint("DistanceX", -1, 1, 1, 3, 31.55828),
    Sketcher.Constraint("DistanceX", 11, 3, -1, 1, 27.937769),
])
pad5 = body.newObject("PartDesign::Pad", "Pad004")
pad5.Profile = sketch16
pad5.Length = 3
pad5.Reversed = True
doc.recompute()

chamfer = body.newObject("PartDesign::Chamfer", "Chamfer")
chamfer.Base = (pad5, edges_at(pad5, [(-22.502, -14.025, -3)]))
chamfer.Size = 2
doc.recompute()

chamfer2 = body.newObject("PartDesign::Chamfer", "Chamfer001")
chamfer2.Base = (chamfer, edges_at(chamfer, [(-22.502, 14.025, -3)]))
chamfer2.Size = 2
doc.recompute()

chamfer3 = body.newObject("PartDesign::Chamfer", "Chamfer002")
chamfer3.Base = (chamfer2, edges_at(chamfer2, [(24.908, -14.75, -3)]))
chamfer3.Size = 2
doc.recompute()

chamfer4 = body.newObject("PartDesign::Chamfer", "Chamfer003")
chamfer4.Base = (chamfer3, edges_at(chamfer3, [(24.908, 14.75, -3)]))
chamfer4.Size = 2

# Sketch on XZ plane
sketch17 = body.newObject("Sketcher::SketchObject", "Sketch016")
sketch17.AttachmentSupport = (doc.getObject("XZ_Plane"), [""])
sketch17.MapMode = "FlatFace"
sketch17.AttachmentOffset = App.Placement(App.Vector(0, 0, -12.05), App.Rotation())
sketch17.addGeometry([
    Part.Circle(App.Vector(28.10828, -1.7, 0), App.Vector(0, 0, 1), 0.6),
    Part.Circle(App.Vector(-25.701992, -1.7, 0), App.Vector(0, 0, 1), 0.6),
], False)
sketch17.addConstraint([
    Sketcher.Constraint("Equal", 0, 1),
    Sketcher.Constraint("Horizontal", 0, 3, 1, 3),
    Sketcher.Constraint("Diameter", 0, 1.2),
    Sketcher.Constraint("DistanceY", 0, 3, -1, 1, 1.7),
    Sketcher.Constraint("DistanceX", -1, 1, 0, 3, 28.10828),
    Sketcher.Constraint("DistanceX", 1, 3, -1, 1, 25.701992),
])
pocket12 = body.newObject("PartDesign::Pocket", "Pocket011")
pocket12.Profile = sketch17
pocket12.Length = 2

# Sketch on XZ plane
sketch18 = body.newObject("Sketcher::SketchObject", "Sketch017")
sketch18.AttachmentSupport = (doc.getObject("XZ_Plane"), [""])
sketch18.MapMode = "FlatFace"
sketch18.AttachmentOffset = App.Placement(App.Vector(0, 0, 12.05), App.Rotation())
sketch18.addGeometry([
    Part.Circle(App.Vector(-25.701992, -1.7, 0), App.Vector(0, 0, 1), 0.6),
    Part.Circle(App.Vector(28.10828, -1.7, 0), App.Vector(0, 0, 1), 0.6),
], False)
sketch18.addConstraint([
    Sketcher.Constraint("Equal", 0, 1),
    Sketcher.Constraint("Horizontal", 0, 3, 1, 3),
    Sketcher.Constraint("Diameter", 0, 1.2),
    Sketcher.Constraint("DistanceY", 0, 3, -1, 1, 1.7),
    Sketcher.Constraint("DistanceX", 0, 3, -1, 1, 25.701992),
    Sketcher.Constraint("DistanceX", -1, 1, 1, 3, 28.10828),
])
pocket13 = body.newObject("PartDesign::Pocket", "Pocket012")
pocket13.Profile = sketch18
pocket13.Length = 2
pocket13.Reversed = True

doc.recompute()
